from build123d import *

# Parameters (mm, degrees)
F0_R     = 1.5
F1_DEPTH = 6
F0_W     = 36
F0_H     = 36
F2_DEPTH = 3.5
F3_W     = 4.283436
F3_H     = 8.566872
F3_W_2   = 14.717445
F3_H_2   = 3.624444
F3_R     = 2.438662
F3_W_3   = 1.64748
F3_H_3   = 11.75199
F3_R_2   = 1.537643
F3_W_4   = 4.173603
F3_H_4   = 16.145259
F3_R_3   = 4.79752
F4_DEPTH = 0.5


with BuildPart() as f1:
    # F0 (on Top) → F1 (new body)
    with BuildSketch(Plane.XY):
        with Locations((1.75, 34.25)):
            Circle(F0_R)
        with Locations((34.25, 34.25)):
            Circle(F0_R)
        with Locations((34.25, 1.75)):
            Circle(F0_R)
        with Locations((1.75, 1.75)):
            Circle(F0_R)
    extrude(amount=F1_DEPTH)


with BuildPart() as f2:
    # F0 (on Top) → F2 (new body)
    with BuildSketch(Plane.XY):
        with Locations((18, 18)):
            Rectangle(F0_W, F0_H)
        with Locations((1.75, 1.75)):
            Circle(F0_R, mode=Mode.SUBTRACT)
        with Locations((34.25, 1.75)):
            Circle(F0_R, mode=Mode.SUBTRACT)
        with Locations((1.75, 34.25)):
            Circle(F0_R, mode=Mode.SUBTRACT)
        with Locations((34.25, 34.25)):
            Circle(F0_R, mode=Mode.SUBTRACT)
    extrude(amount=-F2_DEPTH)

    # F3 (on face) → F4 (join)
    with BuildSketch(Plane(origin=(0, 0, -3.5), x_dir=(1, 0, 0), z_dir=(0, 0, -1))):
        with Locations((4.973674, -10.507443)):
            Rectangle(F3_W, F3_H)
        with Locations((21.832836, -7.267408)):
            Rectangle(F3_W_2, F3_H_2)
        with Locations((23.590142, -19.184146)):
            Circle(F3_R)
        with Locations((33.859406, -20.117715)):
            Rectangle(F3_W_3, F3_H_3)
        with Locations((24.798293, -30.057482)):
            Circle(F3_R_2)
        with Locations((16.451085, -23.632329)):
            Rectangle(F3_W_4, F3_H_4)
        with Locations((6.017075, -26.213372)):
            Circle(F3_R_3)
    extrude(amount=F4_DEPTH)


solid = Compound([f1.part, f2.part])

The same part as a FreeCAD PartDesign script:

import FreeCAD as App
import Part
import Sketcher
from FreeCAD import Vector
Q = App.Units.Quantity


def add_polygon(sketch, points):
    """Adds a closed chain of lines whose ends are joined by coincident constraints."""
    first, n = sketch.GeometryCount, len(points)
    for a, b in zip(points, points[1:] + points[:1]):
        sketch.addGeometry(Part.LineSegment(App.Vector(*a, 0), App.Vector(*b, 0)), False)
    for i in range(n):
        sketch.addConstraint(Sketcher.Constraint("Coincident", first + i, 2, first + (i + 1) % n, 1))

doc = App.newDocument("Part")
params = doc.addObject("Spreadsheet::Sheet", "Params")
for row, (alias, value) in enumerate([
    ("sketch1_diameter", "3 mm"),
    ("pad1_length", "6 mm"),
    ("sketch2_diameter", "3 mm"),
    ("sketch2_width", "36 mm"),
    ("pad2_length", "3.5 mm"),
    ("pad3_length", "0.5 mm"),
], start=1):
    params.set(f"A{row}", alias)
    params.set(f"B{row}", "=" + value)
    params.setAlias(f"B{row}", alias)

body = doc.addObject("PartDesign::Body", "Body")
body.AllowCompound = True

sketch1 = body.newObject("Sketcher::SketchObject", "Sketch")
sketch1.AttachmentSupport = (doc.getObject("XY_Plane"), [""])
sketch1.MapMode = "FlatFace"
sketch1.addGeometry(Part.Circle(Vector(1.8, 34.2, 0), Vector(0, 0, 1), 1.5), False)
sketch1.addGeometry(Part.Circle(Vector(34.2, 34.2, 0), Vector(0, 0, 1), 1.5), False)
sketch1.addGeometry(Part.Circle(Vector(34.2, 1.8, 0), Vector(0, 0, 1), 1.5), False)
sketch1.addGeometry(Part.Circle(Vector(1.8, 1.8, 0), Vector(0, 0, 1), 1.5), False)
sketch1.addConstraint(Sketcher.Constraint("Equal", 0, 1))
sketch1.addConstraint(Sketcher.Constraint("Equal", 1, 2))
sketch1.addConstraint(Sketcher.Constraint("Equal", 2, 3))
sketch1.addConstraint(Sketcher.Constraint("Horizontal", 0, 3, 1, 3))
sketch1.addConstraint(Sketcher.Constraint("Horizontal", 2, 3, 3, 3))
sketch1.addConstraint(Sketcher.Constraint("Vertical", 1, 3, 2, 3))
sketch1.addConstraint(Sketcher.Constraint("Vertical", 0, 3, 3, 3))
sketch1.addConstraint(Sketcher.Constraint("Diameter", 0, Q("3 mm")))
sketch1.addConstraint(Sketcher.Constraint("DistanceX", 0, 3, 1, 3, Q("32.5 mm")))
sketch1.addConstraint(Sketcher.Constraint("DistanceY", 2, 3, 1, 3, Q("32.5 mm")))
sketch1.addConstraint(Sketcher.Constraint("DistanceX", -1, 1, 0, 3, Q("1.75 mm")))
sketch1.addConstraint(Sketcher.Constraint("DistanceY", -1, 1, 0, 3, Q("34.25 mm")))
sketch1.setExpression("Constraints[7]", "Params.sketch1_diameter")
pad1 = body.newObject("PartDesign::Pad", "Pad")
pad1.Profile = sketch1
pad1.setExpression("Length", "Params.pad1_length")
body2 = doc.addObject("PartDesign::Body", "Body001")

sketch2 = body2.newObject("Sketcher::SketchObject", "Sketch001")
sketch2.AttachmentSupport = (doc.getObject("XY_Plane001"), [""])
sketch2.MapMode = "FlatFace"
add_polygon(sketch2, [(0, 36), (0, 0), (36, 0), (36, 36)])
sketch2.addGeometry(Part.Circle(Vector(1.8, 1.8, 0), Vector(0, 0, 1), 1.5), False)
sketch2.addGeometry(Part.Circle(Vector(34.2, 1.8, 0), Vector(0, 0, 1), 1.5), False)
sketch2.addGeometry(Part.Circle(Vector(1.8, 34.2, 0), Vector(0, 0, 1), 1.5), False)
sketch2.addGeometry(Part.Circle(Vector(34.2, 34.2, 0), Vector(0, 0, 1), 1.5), False)
sketch2.addConstraint(Sketcher.Constraint("Vertical", 0))
sketch2.addConstraint(Sketcher.Constraint("Horizontal", 1))
sketch2.addConstraint(Sketcher.Constraint("Vertical", 2))
sketch2.addConstraint(Sketcher.Constraint("Horizontal", 3))
sketch2.addConstraint(Sketcher.Constraint("Coincident", 0, 2, -1, 1))
sketch2.addConstraint(Sketcher.Constraint("Equal", 4, 5))
sketch2.addConstraint(Sketcher.Constraint("Equal", 5, 6))
sketch2.addConstraint(Sketcher.Constraint("Equal", 6, 7))
sketch2.addConstraint(Sketcher.Constraint("Horizontal", 4, 3, 5, 3))
sketch2.addConstraint(Sketcher.Constraint("Horizontal", 6, 3, 7, 3))
sketch2.addConstraint(Sketcher.Constraint("Vertical", 4, 3, 6, 3))
sketch2.addConstraint(Sketcher.Constraint("Vertical", 5, 3, 7, 3))
sketch2.addConstraint(Sketcher.Constraint("Equal", 3, 0))
sketch2.addConstraint(Sketcher.Constraint("Diameter", 4, Q("3 mm")))
sketch2.addConstraint(Sketcher.Constraint("DistanceX", 1, 1, 1, 2, Q("36 mm")))
sketch2.addConstraint(Sketcher.Constraint("DistanceX", 4, 3, 5, 3, Q("32.5 mm")))
sketch2.addConstraint(Sketcher.Constraint("DistanceY", 4, 3, 6, 3, Q("32.5 mm")))
sketch2.addConstraint(Sketcher.Constraint("DistanceX", -1, 1, 4, 3, Q("1.75 mm")))
sketch2.addConstraint(Sketcher.Constraint("DistanceY", -1, 1, 4, 3, Q("1.75 mm")))
sketch2.setExpression("Constraints[17]", "Params.sketch2_diameter")
sketch2.setExpression("Constraints[18]", "Params.sketch2_width")
pad2 = body2.newObject("PartDesign::Pad", "Pad001")
pad2.Profile = sketch2
pad2.setExpression("Length", "Params.pad2_length")
pad2.Reversed = True

sketch3 = body2.newObject("Sketcher::SketchObject", "Sketch002")
sketch3.AttachmentSupport = (doc.getObject("XY_Plane001"), [""])
sketch3.MapMode = "FlatFace"
sketch3.AttachmentOffset = App.Placement(Vector(0, 0, -3.5), App.Rotation())
add_polygon(sketch3, [(2.8, 6.2), (2.8, 14.8), (7.1, 14.8), (7.1, 6.2)])
add_polygon(sketch3, [(14.5, 5.5), (14.5, 9.1), (29.2, 9.1), (29.2, 5.5)])
sketch3.addGeometry(Part.Circle(Vector(23.6, 19.2, 0), Vector(0, 0, 1), 2.4), False)
add_polygon(sketch3, [(33, 14.2), (33, 26), (34.7, 26), (34.7, 14.2)])
sketch3.addGeometry(Part.Circle(Vector(24.8, 30.1, 0), Vector(0, 0, 1), 1.5), False)
add_polygon(sketch3, [(14.4, 15.6), (14.4, 31.7), (18.5, 31.7), (18.5, 15.6)])
sketch3.addGeometry(Part.Circle(Vector(6, 26.2, 0), Vector(0, 0, 1), 4.8), False)
sketch3.addConstraint(Sketcher.Constraint("Vertical", 0))
sketch3.addConstraint(Sketcher.Constraint("Horizontal", 1))
sketch3.addConstraint(Sketcher.Constraint("Vertical", 2))
sketch3.addConstraint(Sketcher.Constraint("Horizontal", 3))
sketch3.addConstraint(Sketcher.Constraint("Vertical", 4))
sketch3.addConstraint(Sketcher.Constraint("Horizontal", 5))
sketch3.addConstraint(Sketcher.Constraint("Vertical", 6))
sketch3.addConstraint(Sketcher.Constraint("Horizontal", 7))
sketch3.addConstraint(Sketcher.Constraint("Vertical", 9))
sketch3.addConstraint(Sketcher.Constraint("Horizontal", 10))
sketch3.addConstraint(Sketcher.Constraint("Vertical", 11))
sketch3.addConstraint(Sketcher.Constraint("Horizontal", 12))
sketch3.addConstraint(Sketcher.Constraint("Vertical", 14))
sketch3.addConstraint(Sketcher.Constraint("Horizontal", 15))
sketch3.addConstraint(Sketcher.Constraint("Vertical", 16))
sketch3.addConstraint(Sketcher.Constraint("Horizontal", 17))
sketch3.addConstraint(Sketcher.Constraint("Diameter", 18, Q("9.59504 mm")))
sketch3.addConstraint(Sketcher.Constraint("Diameter", 8, Q("4.877324 mm")))
sketch3.addConstraint(Sketcher.Constraint("Diameter", 13, Q("3.075286 mm")))
sketch3.addConstraint(Sketcher.Constraint("DistanceX", 10, 1, 10, 2, Q("1.64748 mm")))
sketch3.addConstraint(Sketcher.Constraint("DistanceY", 9, 1, 9, 2, Q("11.75199 mm")))
sketch3.addConstraint(Sketcher.Constraint("DistanceY", 14, 1, 14, 2, Q("16.145259 mm")))
sketch3.addConstraint(Sketcher.Constraint("DistanceY", -1, 1, 16, 2, Q("15.5597 mm")))
sketch3.addConstraint(Sketcher.Constraint("DistanceX", 1, 2, 13, 3, Q("17.682901 mm")))
sketch3.addConstraint(Sketcher.Constraint("DistanceX", 1, 1, 1, 2, Q("4.283436 mm")))
sketch3.addConstraint(Sketcher.Constraint("DistanceX", 5, 1, 5, 2, Q("14.717445 mm")))
sketch3.addConstraint(Sketcher.Constraint("DistanceX", 15, 1, 15, 2, Q("4.173603 mm")))
sketch3.addConstraint(Sketcher.Constraint("DistanceY", 0, 1, 0, 2, Q("8.566872 mm")))
sketch3.addConstraint(Sketcher.Constraint("DistanceY", 4, 1, 4, 2, Q("3.624444 mm")))
sketch3.addConstraint(Sketcher.Constraint("DistanceX", -1, 1, 8, 3, Q("23.590142 mm")))
sketch3.addConstraint(Sketcher.Constraint("DistanceY", -1, 1, 13, 3, Q("30.057482 mm")))
sketch3.addConstraint(Sketcher.Constraint("DistanceY", -1, 1, 18, 3, Q("26.213372 mm")))
sketch3.addConstraint(Sketcher.Constraint("DistanceY", -1, 1, 0, 2, Q("14.790879 mm")))
sketch3.addConstraint(Sketcher.Constraint("DistanceY", -1, 1, 4, 2, Q("9.07963 mm")))
sketch3.addConstraint(Sketcher.Constraint("DistanceX", -1, 1, 5, 2, Q("29.191558 mm")))
sketch3.addConstraint(Sketcher.Constraint("DistanceY", -1, 1, 9, 2, Q("25.99371 mm")))
sketch3.addConstraint(Sketcher.Constraint("DistanceX", 8, 3, 13, 3, Q("1.208151 mm")))
sketch3.addConstraint(Sketcher.Constraint("DistanceX", 18, 3, 13, 3, Q("18.781218 mm")))
sketch3.addConstraint(Sketcher.Constraint("DistanceY", 2, 2, 8, 3, Q("12.960139 mm")))
sketch3.addConstraint(Sketcher.Constraint("DistanceX", 18, 3, 14, 2, Q("8.347209 mm")))
sketch3.addConstraint(Sketcher.Constraint("DistanceX", 15, 2, 9, 2, Q("14.49778 mm")))
pad3 = body2.newObject("PartDesign::Pad", "Pad002")
pad3.Profile = sketch3
pad3.setExpression("Length", "Params.pad3_length")
pad3.Reversed = True

doc.recompute()
